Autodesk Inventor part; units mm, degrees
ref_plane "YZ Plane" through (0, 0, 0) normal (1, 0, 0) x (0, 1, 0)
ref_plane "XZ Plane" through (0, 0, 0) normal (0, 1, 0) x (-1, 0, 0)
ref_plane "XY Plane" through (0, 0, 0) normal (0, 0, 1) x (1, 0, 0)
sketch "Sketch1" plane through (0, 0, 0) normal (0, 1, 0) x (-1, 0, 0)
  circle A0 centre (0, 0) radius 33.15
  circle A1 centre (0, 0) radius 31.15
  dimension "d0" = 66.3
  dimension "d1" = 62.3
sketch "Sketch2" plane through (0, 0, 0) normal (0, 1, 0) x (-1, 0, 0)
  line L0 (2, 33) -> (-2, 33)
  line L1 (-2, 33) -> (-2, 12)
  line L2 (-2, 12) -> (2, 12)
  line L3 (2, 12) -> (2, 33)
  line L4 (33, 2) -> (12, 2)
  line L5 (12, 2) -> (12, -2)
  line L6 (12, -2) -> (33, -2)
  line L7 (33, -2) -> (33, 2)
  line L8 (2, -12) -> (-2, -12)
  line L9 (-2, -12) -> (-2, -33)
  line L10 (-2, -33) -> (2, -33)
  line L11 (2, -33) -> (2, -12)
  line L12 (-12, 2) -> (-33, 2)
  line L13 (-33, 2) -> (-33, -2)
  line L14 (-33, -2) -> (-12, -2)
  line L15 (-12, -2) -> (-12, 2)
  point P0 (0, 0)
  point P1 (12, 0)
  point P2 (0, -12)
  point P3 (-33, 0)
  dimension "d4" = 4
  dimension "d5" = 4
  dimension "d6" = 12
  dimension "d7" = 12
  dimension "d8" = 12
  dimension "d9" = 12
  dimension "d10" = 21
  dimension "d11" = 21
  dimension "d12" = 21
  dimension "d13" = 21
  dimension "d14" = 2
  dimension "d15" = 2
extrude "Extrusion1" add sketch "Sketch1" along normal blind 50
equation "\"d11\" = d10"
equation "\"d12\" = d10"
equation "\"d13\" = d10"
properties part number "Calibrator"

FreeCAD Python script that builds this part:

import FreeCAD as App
import Part
import Sketcher
from FreeCAD import Vector

doc = App.newDocument("Part")
body = doc.addObject("PartDesign::Body", "Body")

# Sketch on XZ plane
sketch1 = body.newObject("Sketcher::SketchObject", "Sketch")
sketch1.AttachmentSupport = (doc.getObject("XZ_Plane"), [""])
sketch1.MapMode = "FlatFace"
sketch1.addGeometry(Part.Circle(Vector(0, 0, 0), Vector(0, 0, 1), 33.15), False)
sketch1.addGeometry(Part.Circle(Vector(0, 0, 0), Vector(0, 0, 1), 31.15), False)
sketch1.addConstraint(Sketcher.Constraint("Coincident", 0, 3, -1, 1))
sketch1.addConstraint(Sketcher.Constraint("Coincident", 1, 3, -1, 1))
sketch1.addConstraint(Sketcher.Constraint("Diameter", 0, 66.3))
sketch1.addConstraint(Sketcher.Constraint("Diameter", 1, 62.3))
pad1 = body.newObject("PartDesign::Pad", "Pad")
pad1.Profile = sketch1
pad1.Length = 50
pad1.Reversed = True

doc.recompute()
